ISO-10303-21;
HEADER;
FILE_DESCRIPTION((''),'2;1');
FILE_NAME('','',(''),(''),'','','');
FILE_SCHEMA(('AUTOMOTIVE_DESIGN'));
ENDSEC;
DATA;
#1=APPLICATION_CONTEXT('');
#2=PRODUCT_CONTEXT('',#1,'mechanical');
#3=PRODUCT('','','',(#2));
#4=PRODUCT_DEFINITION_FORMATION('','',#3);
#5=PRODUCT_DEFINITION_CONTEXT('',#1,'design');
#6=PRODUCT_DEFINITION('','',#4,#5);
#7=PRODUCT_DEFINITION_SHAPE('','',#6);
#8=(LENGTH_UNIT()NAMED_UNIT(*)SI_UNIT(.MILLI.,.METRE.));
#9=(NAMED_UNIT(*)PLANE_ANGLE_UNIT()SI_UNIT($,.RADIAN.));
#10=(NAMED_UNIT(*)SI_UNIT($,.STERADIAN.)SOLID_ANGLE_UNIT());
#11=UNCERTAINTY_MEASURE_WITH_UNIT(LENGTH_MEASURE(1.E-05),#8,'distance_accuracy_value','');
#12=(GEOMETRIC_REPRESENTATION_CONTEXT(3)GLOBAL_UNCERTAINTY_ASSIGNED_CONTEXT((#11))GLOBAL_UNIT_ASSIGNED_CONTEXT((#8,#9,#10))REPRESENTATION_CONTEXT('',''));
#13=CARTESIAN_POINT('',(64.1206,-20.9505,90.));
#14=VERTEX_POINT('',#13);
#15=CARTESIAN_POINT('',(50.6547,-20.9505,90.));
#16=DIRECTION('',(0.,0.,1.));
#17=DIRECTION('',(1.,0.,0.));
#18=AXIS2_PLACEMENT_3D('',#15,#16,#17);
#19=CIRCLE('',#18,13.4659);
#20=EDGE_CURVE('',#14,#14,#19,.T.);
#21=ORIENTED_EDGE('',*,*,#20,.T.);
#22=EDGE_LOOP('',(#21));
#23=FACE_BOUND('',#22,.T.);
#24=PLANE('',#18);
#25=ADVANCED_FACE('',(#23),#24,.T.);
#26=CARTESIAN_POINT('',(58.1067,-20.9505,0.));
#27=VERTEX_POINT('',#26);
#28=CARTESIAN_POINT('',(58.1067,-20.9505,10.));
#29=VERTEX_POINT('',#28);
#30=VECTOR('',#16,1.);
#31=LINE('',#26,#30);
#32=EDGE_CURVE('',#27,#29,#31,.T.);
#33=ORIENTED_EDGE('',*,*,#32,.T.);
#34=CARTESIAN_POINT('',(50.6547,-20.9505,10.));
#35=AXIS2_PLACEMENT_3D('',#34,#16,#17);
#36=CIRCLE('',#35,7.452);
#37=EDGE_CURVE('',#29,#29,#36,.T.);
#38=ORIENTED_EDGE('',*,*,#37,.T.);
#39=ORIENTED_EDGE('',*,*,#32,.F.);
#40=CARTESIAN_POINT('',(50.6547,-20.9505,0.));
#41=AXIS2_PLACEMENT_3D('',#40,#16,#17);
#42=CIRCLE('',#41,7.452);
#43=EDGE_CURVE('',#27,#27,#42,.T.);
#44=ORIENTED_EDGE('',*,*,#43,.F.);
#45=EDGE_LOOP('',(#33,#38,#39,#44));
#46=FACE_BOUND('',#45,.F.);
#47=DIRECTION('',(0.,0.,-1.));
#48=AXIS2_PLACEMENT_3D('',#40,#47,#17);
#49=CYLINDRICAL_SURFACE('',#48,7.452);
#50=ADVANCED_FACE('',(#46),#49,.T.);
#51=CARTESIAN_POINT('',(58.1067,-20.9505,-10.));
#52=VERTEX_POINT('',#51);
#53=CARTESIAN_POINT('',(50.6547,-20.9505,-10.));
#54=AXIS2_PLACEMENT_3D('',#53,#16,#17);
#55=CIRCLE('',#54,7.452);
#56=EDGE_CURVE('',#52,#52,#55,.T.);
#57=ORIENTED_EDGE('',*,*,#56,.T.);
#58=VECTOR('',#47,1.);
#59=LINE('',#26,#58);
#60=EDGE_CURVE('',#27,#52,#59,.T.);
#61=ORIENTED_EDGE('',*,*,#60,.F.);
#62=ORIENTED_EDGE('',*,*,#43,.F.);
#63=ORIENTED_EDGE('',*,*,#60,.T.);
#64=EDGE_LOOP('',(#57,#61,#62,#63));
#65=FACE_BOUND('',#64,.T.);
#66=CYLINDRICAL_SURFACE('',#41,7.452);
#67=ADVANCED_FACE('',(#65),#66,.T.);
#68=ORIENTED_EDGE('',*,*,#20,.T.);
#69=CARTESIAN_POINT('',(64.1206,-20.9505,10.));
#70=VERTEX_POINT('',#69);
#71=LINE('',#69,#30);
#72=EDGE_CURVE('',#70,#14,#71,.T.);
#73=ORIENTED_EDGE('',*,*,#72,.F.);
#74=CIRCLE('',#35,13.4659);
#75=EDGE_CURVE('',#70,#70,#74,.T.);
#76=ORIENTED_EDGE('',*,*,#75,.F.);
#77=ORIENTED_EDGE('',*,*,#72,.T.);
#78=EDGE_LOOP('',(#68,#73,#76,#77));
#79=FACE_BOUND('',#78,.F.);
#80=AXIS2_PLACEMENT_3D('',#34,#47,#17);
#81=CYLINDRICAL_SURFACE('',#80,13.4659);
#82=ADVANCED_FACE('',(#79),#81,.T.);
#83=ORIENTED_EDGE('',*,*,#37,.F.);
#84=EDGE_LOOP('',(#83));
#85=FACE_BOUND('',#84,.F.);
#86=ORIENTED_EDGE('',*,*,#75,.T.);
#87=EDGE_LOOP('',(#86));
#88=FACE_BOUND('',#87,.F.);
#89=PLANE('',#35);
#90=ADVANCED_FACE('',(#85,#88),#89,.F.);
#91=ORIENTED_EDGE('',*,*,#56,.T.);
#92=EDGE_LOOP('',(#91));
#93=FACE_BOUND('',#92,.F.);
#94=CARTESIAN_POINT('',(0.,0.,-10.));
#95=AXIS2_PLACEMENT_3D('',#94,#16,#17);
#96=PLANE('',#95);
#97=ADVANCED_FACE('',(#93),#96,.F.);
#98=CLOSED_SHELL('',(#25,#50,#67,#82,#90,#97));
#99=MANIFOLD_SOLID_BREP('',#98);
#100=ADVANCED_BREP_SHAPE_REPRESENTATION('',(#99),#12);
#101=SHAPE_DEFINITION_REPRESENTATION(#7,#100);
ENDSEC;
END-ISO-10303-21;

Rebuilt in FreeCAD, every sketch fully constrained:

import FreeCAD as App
import Part
import Sketcher
from FreeCAD import Vector
Q = App.Units.Quantity

doc = App.newDocument("Part")
body = doc.addObject("PartDesign::Body", "Body")

# Sketch on XY plane
sketch1 = body.newObject("Sketcher::SketchObject", "Sketch")
sketch1.AttachmentSupport = (doc.getObject("XY_Plane"), [""])
sketch1.MapMode = "FlatFace"
sketch1.addGeometry(Part.Circle(Vector(51, -21, 0), Vector(0, 0, 1), 7), False)
sketch1.addConstraint(Sketcher.Constraint("Diameter", 0, Q("14.904 mm")))
sketch1.addConstraint(Sketcher.Constraint("DistanceX", -1, 1, 0, 3, Q("50.6547 mm")))
sketch1.addConstraint(Sketcher.Constraint("DistanceY", 0, 3, -1, 1, Q("20.9505 mm")))
pad1 = body.newObject("PartDesign::Pad", "Pad")
pad1.Profile = sketch1
pad1.Length = 20
pad1.Midplane = True

# Sketch on XY plane
sketch2 = body.newObject("Sketcher::SketchObject", "Sketch001")
sketch2.AttachmentSupport = (doc.getObject("XY_Plane"), [""])
sketch2.MapMode = "FlatFace"
sketch2.AttachmentOffset = App.Placement(Vector(0, 0, 10), App.Rotation())
sketch2.addGeometry(Part.Circle(Vector(51, -21, 0), Vector(0, 0, 1), 13), False)
sketch2.addConstraint(Sketcher.Constraint("Diameter", 0, Q("26.9318 mm")))
sketch2.addConstraint(Sketcher.Constraint("DistanceX", -1, 1, 0, 3, Q("50.6547 mm")))
sketch2.addConstraint(Sketcher.Constraint("DistanceY", 0, 3, -1, 1, Q("20.9505 mm")))
pad2 = body.newObject("PartDesign::Pad", "Pad001")
pad2.Profile = sketch2
pad2.Length = 80

doc.recompute()
